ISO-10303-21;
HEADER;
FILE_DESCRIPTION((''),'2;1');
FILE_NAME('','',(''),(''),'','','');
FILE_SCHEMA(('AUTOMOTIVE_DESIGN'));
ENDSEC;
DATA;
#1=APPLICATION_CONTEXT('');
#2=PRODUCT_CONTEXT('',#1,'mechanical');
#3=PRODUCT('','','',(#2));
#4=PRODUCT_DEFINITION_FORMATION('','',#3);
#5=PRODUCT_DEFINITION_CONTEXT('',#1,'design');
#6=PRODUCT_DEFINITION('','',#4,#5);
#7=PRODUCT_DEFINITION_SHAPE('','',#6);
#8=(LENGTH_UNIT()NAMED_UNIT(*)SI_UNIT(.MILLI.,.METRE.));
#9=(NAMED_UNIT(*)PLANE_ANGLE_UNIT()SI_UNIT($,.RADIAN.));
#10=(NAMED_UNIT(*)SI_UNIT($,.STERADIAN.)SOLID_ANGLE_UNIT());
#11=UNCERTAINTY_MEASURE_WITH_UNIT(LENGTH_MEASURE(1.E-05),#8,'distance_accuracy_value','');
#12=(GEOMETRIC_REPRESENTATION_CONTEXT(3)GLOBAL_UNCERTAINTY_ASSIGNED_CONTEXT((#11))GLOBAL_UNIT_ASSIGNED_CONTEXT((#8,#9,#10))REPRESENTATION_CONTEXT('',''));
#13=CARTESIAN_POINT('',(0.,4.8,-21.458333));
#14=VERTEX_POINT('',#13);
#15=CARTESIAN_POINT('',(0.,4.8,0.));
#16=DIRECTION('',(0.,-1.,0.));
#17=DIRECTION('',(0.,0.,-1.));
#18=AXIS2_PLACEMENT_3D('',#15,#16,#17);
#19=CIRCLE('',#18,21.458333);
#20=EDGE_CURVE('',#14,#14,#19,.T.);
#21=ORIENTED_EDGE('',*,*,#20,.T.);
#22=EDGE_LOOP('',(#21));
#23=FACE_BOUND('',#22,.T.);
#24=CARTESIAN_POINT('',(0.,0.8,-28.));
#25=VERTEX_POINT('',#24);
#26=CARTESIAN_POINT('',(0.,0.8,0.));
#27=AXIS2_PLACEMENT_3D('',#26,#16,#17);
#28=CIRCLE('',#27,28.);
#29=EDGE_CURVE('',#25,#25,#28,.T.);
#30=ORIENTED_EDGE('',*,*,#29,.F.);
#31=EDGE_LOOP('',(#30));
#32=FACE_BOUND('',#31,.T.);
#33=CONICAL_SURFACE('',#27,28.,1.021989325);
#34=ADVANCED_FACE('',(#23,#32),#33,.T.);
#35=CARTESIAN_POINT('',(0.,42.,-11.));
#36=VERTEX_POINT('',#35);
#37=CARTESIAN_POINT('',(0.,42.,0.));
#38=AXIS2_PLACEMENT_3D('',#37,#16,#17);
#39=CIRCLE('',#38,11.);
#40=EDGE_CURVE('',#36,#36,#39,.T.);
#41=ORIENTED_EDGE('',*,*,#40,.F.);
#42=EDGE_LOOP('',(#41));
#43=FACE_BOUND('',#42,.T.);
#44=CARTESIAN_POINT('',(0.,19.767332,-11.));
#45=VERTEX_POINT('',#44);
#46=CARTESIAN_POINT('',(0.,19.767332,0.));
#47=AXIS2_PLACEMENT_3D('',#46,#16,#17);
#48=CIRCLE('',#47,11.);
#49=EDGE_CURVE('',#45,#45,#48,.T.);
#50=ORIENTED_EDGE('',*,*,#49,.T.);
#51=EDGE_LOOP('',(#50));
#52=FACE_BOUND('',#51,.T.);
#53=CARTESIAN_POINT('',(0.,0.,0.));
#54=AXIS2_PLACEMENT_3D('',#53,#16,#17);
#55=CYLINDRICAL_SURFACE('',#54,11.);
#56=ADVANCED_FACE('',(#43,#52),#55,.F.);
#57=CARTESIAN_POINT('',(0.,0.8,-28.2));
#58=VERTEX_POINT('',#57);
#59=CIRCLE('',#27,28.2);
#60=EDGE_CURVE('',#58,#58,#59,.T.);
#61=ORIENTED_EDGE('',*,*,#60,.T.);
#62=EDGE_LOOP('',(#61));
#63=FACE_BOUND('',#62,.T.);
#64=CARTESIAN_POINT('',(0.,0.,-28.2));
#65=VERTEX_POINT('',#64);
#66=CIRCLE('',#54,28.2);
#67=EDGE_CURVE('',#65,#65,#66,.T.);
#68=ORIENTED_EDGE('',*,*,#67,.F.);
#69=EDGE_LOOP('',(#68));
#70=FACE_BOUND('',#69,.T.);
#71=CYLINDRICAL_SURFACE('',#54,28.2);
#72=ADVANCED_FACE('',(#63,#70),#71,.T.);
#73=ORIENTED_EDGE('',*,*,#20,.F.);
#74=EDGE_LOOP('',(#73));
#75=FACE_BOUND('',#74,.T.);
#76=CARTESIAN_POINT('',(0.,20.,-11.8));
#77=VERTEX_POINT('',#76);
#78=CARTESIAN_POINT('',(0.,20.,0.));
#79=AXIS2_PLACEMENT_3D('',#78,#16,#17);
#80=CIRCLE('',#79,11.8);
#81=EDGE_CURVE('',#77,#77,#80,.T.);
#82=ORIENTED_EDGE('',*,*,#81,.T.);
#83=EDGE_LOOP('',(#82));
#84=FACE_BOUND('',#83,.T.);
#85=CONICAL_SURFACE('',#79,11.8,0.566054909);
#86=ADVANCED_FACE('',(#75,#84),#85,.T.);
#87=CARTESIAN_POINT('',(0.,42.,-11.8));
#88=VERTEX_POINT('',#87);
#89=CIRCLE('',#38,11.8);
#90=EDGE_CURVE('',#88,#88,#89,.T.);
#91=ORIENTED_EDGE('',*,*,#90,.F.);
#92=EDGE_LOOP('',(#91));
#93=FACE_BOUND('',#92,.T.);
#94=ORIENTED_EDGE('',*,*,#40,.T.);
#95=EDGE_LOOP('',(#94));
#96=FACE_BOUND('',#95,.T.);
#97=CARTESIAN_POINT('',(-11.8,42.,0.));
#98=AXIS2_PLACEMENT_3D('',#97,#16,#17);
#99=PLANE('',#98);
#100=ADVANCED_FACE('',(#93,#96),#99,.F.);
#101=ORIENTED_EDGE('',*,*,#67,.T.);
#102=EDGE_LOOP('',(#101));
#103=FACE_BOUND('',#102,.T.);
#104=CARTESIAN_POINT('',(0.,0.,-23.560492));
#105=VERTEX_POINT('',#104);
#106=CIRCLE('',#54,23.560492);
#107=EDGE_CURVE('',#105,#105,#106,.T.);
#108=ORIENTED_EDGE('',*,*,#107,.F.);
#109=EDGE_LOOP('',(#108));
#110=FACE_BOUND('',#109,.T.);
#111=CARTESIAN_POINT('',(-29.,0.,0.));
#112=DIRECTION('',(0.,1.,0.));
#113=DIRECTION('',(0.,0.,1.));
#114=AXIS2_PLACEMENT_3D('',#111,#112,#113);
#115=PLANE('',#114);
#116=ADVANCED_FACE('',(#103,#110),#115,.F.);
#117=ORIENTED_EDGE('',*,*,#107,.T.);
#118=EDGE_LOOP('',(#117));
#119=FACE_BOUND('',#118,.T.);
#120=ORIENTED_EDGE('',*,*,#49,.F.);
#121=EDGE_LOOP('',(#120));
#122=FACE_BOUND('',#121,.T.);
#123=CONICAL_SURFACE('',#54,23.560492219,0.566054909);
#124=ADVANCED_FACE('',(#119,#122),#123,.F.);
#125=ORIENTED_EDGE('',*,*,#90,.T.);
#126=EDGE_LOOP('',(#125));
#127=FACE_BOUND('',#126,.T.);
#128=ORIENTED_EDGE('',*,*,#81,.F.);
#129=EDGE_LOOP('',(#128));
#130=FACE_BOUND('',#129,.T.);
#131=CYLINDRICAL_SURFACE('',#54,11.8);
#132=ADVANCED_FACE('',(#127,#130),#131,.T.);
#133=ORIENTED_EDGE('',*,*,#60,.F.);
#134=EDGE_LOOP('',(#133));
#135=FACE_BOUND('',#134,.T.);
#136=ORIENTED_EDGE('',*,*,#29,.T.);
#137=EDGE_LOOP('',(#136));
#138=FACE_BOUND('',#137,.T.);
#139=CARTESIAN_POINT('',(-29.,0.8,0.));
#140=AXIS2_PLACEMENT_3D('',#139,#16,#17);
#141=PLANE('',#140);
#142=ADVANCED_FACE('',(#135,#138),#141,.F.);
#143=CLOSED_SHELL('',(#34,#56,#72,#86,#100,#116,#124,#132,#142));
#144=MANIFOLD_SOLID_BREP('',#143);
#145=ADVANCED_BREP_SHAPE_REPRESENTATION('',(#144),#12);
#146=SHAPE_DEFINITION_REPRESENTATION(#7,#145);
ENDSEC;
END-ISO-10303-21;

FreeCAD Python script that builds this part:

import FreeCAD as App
import Part
import Sketcher
Q = App.Units.Quantity

doc = App.newDocument("Part")
body = doc.addObject("PartDesign::Body", "Body")

# Sketch on XY plane
sketch1 = body.newObject("Sketcher::SketchObject", "Sketch")
sketch1.AttachmentSupport = (doc.getObject("XY_Plane"), [""])
sketch1.MapMode = "FlatFace"
sketch1.addGeometry([
    Part.LineSegment(App.Vector(-21.458333, 4.8, 0), App.Vector(-28, 1.8, 0)),  # 0
    Part.LineSegment(App.Vector(-28, 1.8, 0), App.Vector(-28, 0.8, 0)),  # 1
    Part.LineSegment(App.Vector(-28, 0.8, 0), App.Vector(-29, 0.8, 0)),  # 2
    Part.LineSegment(App.Vector(-29, 0.8, 0), App.Vector(-29, 0, 0)),  # 3
    Part.LineSegment(App.Vector(-29, 0, 0), App.Vector(-23.560492, 0, 0)),  # 4
    Part.LineSegment(App.Vector(-23.560492, 0, 0), App.Vector(-11, 19.767332, 0)),  # 5
    Part.LineSegment(App.Vector(-11, 19.767332, 0), App.Vector(-11, 42, 0)),  # 6
    Part.LineSegment(App.Vector(-11, 42, 0), App.Vector(-11.8, 42, 0)),  # 7
    Part.LineSegment(App.Vector(-11.8, 42, 0), App.Vector(-11.8, 20, 0)),  # 8
    Part.LineSegment(App.Vector(-11.8, 20, 0), App.Vector(-21.458333, 4.8, 0)),  # 9
], False)
sketch1.addConstraint([
    Sketcher.Constraint("Coincident", 0, 2, 1, 1),
    Sketcher.Constraint("Coincident", 1, 2, 2, 1),
    Sketcher.Constraint("Coincident", 2, 2, 3, 1),
    Sketcher.Constraint("Coincident", 3, 2, 4, 1),
    Sketcher.Constraint("Coincident", 4, 2, 5, 1),
    Sketcher.Constraint("Coincident", 5, 2, 6, 1),
    Sketcher.Constraint("Coincident", 6, 2, 7, 1),
    Sketcher.Constraint("Coincident", 7, 2, 8, 1),
    Sketcher.Constraint("Coincident", 8, 2, 9, 1),
    Sketcher.Constraint("Coincident", 9, 2, 0, 1),
    Sketcher.Constraint("Vertical", 1),
    Sketcher.Constraint("Horizontal", 2),
    Sketcher.Constraint("Vertical", 3),
    Sketcher.Constraint("Horizontal", 4),
    Sketcher.Constraint("Vertical", 6),
    Sketcher.Constraint("Horizontal", 7),
    Sketcher.Constraint("Vertical", 8),
    Sketcher.Constraint("PointOnObject", 3, 2, -1),
    Sketcher.Constraint("Parallel", 5, 9),
    Sketcher.Constraint("Equal", 2, 1),
    Sketcher.Constraint("Equal", 7, 3),
    Sketcher.Constraint("DistanceX", 2, 2, 2, 1, Q("1 mm")),
    Sketcher.Constraint("DistanceY", 8, 2, 8, 1, Q("22 mm")),
    Sketcher.Constraint("DistanceX", 7, 2, 7, 1, Q("0.8 mm")),
    Sketcher.Constraint("DistanceX", 0, 2, -1, 1, Q("28 mm")),
    Sketcher.Constraint("DistanceX", 5, 2, -1, 1, Q("11 mm")),
    Sketcher.Constraint("DistanceY", -1, 1, 6, 2, Q("42 mm")),
    Sketcher.Constraint("DistanceY", 0, 2, 9, 2, Q("3 mm")),
    Sketcher.Constraint("Distance", 9, Q("18.008981 mm")),
    Sketcher.Constraint("DistanceX", 4, 1, 4, 2, Q("5.439508 mm")),
])
revolution = body.newObject("PartDesign::Revolution", "Revolution")
revolution.Profile = sketch1
revolution.ReferenceAxis = (sketch1, ["V_Axis"])
revolution.Angle = 360

# Sketch on XY plane
sketch2 = body.newObject("Sketcher::SketchObject", "Sketch001")
sketch2.AttachmentSupport = (doc.getObject("XY_Plane"), [""])
sketch2.MapMode = "FlatFace"
sketch2.addGeometry([
    Part.LineSegment(App.Vector(-29, 0.8, 0), App.Vector(-29, 0, 0)),
    Part.LineSegment(App.Vector(-29, 0, 0), App.Vector(-28.2, 0, 0)),
    Part.LineSegment(App.Vector(-28.2, 0, 0), App.Vector(-28.2, 0.8, 0)),
    Part.LineSegment(App.Vector(-28.2, 0.8, 0), App.Vector(-29, 0.8, 0)),
], False)
sketch2.addConstraint([
    Sketcher.Constraint("Coincident", 0, 2, 1, 1),
    Sketcher.Constraint("Coincident", 1, 2, 2, 1),
    Sketcher.Constraint("Coincident", 2, 2, 3, 1),
    Sketcher.Constraint("Coincident", 3, 2, 0, 1),
    Sketcher.Constraint("Vertical", 0),
    Sketcher.Constraint("Horizontal", 1),
    Sketcher.Constraint("Vertical", 2),
    Sketcher.Constraint("Horizontal", 3),
    Sketcher.Constraint("PointOnObject", 0, 2, -1),
    Sketcher.Constraint("Equal", 3, 0),
    Sketcher.Constraint("DistanceX", 1, 1, 1, 2, Q("0.8 mm")),
    Sketcher.Constraint("DistanceX", 0, 2, -1, 1, Q("29 mm")),
])
groove = body.newObject("PartDesign::Groove", "Groove")
groove.Profile = sketch2
groove.ReferenceAxis = (sketch2, ["V_Axis"])
groove.Angle = 360

# Sketch on XY plane
sketch3 = body.newObject("Sketcher::SketchObject", "Sketch002")
sketch3.AttachmentSupport = (doc.getObject("XY_Plane"), [""])
sketch3.MapMode = "FlatFace"
sketch3.addGeometry([
    Part.LineSegment(App.Vector(-28, 1.8, 0), App.Vector(-28, 0.8, 0)),
    Part.LineSegment(App.Vector(-28, 0.8, 0), App.Vector(-21.458333, 4.8, 0)),
    Part.LineSegment(App.Vector(-21.458333, 4.8, 0), App.Vector(-28, 1.8, 0)),
], False)
sketch3.addConstraint([
    Sketcher.Constraint("Coincident", 0, 2, 1, 1),
    Sketcher.Constraint("Coincident", 1, 2, 2, 1),
    Sketcher.Constraint("Coincident", 2, 2, 0, 1),
    Sketcher.Constraint("Vertical", 0),
    Sketcher.Constraint("DistanceY", 0, 2, 0, 1, Q("1 mm")),
    Sketcher.Constraint("DistanceX", 0, 2, -1, 1, Q("28 mm")),
    Sketcher.Constraint("DistanceY", 0, 2, 1, 2, Q("4 mm")),
    Sketcher.Constraint("DistanceY", -1, 1, 0, 2, Q("0.8 mm")),
    Sketcher.Constraint("Distance", 1, Q("7.667686 mm")),
])
groove2 = body.newObject("PartDesign::Groove", "Groove001")
groove2.Profile = sketch3
groove2.ReferenceAxis = (sketch3, ["V_Axis"])
groove2.Angle = 360

doc.recompute()
